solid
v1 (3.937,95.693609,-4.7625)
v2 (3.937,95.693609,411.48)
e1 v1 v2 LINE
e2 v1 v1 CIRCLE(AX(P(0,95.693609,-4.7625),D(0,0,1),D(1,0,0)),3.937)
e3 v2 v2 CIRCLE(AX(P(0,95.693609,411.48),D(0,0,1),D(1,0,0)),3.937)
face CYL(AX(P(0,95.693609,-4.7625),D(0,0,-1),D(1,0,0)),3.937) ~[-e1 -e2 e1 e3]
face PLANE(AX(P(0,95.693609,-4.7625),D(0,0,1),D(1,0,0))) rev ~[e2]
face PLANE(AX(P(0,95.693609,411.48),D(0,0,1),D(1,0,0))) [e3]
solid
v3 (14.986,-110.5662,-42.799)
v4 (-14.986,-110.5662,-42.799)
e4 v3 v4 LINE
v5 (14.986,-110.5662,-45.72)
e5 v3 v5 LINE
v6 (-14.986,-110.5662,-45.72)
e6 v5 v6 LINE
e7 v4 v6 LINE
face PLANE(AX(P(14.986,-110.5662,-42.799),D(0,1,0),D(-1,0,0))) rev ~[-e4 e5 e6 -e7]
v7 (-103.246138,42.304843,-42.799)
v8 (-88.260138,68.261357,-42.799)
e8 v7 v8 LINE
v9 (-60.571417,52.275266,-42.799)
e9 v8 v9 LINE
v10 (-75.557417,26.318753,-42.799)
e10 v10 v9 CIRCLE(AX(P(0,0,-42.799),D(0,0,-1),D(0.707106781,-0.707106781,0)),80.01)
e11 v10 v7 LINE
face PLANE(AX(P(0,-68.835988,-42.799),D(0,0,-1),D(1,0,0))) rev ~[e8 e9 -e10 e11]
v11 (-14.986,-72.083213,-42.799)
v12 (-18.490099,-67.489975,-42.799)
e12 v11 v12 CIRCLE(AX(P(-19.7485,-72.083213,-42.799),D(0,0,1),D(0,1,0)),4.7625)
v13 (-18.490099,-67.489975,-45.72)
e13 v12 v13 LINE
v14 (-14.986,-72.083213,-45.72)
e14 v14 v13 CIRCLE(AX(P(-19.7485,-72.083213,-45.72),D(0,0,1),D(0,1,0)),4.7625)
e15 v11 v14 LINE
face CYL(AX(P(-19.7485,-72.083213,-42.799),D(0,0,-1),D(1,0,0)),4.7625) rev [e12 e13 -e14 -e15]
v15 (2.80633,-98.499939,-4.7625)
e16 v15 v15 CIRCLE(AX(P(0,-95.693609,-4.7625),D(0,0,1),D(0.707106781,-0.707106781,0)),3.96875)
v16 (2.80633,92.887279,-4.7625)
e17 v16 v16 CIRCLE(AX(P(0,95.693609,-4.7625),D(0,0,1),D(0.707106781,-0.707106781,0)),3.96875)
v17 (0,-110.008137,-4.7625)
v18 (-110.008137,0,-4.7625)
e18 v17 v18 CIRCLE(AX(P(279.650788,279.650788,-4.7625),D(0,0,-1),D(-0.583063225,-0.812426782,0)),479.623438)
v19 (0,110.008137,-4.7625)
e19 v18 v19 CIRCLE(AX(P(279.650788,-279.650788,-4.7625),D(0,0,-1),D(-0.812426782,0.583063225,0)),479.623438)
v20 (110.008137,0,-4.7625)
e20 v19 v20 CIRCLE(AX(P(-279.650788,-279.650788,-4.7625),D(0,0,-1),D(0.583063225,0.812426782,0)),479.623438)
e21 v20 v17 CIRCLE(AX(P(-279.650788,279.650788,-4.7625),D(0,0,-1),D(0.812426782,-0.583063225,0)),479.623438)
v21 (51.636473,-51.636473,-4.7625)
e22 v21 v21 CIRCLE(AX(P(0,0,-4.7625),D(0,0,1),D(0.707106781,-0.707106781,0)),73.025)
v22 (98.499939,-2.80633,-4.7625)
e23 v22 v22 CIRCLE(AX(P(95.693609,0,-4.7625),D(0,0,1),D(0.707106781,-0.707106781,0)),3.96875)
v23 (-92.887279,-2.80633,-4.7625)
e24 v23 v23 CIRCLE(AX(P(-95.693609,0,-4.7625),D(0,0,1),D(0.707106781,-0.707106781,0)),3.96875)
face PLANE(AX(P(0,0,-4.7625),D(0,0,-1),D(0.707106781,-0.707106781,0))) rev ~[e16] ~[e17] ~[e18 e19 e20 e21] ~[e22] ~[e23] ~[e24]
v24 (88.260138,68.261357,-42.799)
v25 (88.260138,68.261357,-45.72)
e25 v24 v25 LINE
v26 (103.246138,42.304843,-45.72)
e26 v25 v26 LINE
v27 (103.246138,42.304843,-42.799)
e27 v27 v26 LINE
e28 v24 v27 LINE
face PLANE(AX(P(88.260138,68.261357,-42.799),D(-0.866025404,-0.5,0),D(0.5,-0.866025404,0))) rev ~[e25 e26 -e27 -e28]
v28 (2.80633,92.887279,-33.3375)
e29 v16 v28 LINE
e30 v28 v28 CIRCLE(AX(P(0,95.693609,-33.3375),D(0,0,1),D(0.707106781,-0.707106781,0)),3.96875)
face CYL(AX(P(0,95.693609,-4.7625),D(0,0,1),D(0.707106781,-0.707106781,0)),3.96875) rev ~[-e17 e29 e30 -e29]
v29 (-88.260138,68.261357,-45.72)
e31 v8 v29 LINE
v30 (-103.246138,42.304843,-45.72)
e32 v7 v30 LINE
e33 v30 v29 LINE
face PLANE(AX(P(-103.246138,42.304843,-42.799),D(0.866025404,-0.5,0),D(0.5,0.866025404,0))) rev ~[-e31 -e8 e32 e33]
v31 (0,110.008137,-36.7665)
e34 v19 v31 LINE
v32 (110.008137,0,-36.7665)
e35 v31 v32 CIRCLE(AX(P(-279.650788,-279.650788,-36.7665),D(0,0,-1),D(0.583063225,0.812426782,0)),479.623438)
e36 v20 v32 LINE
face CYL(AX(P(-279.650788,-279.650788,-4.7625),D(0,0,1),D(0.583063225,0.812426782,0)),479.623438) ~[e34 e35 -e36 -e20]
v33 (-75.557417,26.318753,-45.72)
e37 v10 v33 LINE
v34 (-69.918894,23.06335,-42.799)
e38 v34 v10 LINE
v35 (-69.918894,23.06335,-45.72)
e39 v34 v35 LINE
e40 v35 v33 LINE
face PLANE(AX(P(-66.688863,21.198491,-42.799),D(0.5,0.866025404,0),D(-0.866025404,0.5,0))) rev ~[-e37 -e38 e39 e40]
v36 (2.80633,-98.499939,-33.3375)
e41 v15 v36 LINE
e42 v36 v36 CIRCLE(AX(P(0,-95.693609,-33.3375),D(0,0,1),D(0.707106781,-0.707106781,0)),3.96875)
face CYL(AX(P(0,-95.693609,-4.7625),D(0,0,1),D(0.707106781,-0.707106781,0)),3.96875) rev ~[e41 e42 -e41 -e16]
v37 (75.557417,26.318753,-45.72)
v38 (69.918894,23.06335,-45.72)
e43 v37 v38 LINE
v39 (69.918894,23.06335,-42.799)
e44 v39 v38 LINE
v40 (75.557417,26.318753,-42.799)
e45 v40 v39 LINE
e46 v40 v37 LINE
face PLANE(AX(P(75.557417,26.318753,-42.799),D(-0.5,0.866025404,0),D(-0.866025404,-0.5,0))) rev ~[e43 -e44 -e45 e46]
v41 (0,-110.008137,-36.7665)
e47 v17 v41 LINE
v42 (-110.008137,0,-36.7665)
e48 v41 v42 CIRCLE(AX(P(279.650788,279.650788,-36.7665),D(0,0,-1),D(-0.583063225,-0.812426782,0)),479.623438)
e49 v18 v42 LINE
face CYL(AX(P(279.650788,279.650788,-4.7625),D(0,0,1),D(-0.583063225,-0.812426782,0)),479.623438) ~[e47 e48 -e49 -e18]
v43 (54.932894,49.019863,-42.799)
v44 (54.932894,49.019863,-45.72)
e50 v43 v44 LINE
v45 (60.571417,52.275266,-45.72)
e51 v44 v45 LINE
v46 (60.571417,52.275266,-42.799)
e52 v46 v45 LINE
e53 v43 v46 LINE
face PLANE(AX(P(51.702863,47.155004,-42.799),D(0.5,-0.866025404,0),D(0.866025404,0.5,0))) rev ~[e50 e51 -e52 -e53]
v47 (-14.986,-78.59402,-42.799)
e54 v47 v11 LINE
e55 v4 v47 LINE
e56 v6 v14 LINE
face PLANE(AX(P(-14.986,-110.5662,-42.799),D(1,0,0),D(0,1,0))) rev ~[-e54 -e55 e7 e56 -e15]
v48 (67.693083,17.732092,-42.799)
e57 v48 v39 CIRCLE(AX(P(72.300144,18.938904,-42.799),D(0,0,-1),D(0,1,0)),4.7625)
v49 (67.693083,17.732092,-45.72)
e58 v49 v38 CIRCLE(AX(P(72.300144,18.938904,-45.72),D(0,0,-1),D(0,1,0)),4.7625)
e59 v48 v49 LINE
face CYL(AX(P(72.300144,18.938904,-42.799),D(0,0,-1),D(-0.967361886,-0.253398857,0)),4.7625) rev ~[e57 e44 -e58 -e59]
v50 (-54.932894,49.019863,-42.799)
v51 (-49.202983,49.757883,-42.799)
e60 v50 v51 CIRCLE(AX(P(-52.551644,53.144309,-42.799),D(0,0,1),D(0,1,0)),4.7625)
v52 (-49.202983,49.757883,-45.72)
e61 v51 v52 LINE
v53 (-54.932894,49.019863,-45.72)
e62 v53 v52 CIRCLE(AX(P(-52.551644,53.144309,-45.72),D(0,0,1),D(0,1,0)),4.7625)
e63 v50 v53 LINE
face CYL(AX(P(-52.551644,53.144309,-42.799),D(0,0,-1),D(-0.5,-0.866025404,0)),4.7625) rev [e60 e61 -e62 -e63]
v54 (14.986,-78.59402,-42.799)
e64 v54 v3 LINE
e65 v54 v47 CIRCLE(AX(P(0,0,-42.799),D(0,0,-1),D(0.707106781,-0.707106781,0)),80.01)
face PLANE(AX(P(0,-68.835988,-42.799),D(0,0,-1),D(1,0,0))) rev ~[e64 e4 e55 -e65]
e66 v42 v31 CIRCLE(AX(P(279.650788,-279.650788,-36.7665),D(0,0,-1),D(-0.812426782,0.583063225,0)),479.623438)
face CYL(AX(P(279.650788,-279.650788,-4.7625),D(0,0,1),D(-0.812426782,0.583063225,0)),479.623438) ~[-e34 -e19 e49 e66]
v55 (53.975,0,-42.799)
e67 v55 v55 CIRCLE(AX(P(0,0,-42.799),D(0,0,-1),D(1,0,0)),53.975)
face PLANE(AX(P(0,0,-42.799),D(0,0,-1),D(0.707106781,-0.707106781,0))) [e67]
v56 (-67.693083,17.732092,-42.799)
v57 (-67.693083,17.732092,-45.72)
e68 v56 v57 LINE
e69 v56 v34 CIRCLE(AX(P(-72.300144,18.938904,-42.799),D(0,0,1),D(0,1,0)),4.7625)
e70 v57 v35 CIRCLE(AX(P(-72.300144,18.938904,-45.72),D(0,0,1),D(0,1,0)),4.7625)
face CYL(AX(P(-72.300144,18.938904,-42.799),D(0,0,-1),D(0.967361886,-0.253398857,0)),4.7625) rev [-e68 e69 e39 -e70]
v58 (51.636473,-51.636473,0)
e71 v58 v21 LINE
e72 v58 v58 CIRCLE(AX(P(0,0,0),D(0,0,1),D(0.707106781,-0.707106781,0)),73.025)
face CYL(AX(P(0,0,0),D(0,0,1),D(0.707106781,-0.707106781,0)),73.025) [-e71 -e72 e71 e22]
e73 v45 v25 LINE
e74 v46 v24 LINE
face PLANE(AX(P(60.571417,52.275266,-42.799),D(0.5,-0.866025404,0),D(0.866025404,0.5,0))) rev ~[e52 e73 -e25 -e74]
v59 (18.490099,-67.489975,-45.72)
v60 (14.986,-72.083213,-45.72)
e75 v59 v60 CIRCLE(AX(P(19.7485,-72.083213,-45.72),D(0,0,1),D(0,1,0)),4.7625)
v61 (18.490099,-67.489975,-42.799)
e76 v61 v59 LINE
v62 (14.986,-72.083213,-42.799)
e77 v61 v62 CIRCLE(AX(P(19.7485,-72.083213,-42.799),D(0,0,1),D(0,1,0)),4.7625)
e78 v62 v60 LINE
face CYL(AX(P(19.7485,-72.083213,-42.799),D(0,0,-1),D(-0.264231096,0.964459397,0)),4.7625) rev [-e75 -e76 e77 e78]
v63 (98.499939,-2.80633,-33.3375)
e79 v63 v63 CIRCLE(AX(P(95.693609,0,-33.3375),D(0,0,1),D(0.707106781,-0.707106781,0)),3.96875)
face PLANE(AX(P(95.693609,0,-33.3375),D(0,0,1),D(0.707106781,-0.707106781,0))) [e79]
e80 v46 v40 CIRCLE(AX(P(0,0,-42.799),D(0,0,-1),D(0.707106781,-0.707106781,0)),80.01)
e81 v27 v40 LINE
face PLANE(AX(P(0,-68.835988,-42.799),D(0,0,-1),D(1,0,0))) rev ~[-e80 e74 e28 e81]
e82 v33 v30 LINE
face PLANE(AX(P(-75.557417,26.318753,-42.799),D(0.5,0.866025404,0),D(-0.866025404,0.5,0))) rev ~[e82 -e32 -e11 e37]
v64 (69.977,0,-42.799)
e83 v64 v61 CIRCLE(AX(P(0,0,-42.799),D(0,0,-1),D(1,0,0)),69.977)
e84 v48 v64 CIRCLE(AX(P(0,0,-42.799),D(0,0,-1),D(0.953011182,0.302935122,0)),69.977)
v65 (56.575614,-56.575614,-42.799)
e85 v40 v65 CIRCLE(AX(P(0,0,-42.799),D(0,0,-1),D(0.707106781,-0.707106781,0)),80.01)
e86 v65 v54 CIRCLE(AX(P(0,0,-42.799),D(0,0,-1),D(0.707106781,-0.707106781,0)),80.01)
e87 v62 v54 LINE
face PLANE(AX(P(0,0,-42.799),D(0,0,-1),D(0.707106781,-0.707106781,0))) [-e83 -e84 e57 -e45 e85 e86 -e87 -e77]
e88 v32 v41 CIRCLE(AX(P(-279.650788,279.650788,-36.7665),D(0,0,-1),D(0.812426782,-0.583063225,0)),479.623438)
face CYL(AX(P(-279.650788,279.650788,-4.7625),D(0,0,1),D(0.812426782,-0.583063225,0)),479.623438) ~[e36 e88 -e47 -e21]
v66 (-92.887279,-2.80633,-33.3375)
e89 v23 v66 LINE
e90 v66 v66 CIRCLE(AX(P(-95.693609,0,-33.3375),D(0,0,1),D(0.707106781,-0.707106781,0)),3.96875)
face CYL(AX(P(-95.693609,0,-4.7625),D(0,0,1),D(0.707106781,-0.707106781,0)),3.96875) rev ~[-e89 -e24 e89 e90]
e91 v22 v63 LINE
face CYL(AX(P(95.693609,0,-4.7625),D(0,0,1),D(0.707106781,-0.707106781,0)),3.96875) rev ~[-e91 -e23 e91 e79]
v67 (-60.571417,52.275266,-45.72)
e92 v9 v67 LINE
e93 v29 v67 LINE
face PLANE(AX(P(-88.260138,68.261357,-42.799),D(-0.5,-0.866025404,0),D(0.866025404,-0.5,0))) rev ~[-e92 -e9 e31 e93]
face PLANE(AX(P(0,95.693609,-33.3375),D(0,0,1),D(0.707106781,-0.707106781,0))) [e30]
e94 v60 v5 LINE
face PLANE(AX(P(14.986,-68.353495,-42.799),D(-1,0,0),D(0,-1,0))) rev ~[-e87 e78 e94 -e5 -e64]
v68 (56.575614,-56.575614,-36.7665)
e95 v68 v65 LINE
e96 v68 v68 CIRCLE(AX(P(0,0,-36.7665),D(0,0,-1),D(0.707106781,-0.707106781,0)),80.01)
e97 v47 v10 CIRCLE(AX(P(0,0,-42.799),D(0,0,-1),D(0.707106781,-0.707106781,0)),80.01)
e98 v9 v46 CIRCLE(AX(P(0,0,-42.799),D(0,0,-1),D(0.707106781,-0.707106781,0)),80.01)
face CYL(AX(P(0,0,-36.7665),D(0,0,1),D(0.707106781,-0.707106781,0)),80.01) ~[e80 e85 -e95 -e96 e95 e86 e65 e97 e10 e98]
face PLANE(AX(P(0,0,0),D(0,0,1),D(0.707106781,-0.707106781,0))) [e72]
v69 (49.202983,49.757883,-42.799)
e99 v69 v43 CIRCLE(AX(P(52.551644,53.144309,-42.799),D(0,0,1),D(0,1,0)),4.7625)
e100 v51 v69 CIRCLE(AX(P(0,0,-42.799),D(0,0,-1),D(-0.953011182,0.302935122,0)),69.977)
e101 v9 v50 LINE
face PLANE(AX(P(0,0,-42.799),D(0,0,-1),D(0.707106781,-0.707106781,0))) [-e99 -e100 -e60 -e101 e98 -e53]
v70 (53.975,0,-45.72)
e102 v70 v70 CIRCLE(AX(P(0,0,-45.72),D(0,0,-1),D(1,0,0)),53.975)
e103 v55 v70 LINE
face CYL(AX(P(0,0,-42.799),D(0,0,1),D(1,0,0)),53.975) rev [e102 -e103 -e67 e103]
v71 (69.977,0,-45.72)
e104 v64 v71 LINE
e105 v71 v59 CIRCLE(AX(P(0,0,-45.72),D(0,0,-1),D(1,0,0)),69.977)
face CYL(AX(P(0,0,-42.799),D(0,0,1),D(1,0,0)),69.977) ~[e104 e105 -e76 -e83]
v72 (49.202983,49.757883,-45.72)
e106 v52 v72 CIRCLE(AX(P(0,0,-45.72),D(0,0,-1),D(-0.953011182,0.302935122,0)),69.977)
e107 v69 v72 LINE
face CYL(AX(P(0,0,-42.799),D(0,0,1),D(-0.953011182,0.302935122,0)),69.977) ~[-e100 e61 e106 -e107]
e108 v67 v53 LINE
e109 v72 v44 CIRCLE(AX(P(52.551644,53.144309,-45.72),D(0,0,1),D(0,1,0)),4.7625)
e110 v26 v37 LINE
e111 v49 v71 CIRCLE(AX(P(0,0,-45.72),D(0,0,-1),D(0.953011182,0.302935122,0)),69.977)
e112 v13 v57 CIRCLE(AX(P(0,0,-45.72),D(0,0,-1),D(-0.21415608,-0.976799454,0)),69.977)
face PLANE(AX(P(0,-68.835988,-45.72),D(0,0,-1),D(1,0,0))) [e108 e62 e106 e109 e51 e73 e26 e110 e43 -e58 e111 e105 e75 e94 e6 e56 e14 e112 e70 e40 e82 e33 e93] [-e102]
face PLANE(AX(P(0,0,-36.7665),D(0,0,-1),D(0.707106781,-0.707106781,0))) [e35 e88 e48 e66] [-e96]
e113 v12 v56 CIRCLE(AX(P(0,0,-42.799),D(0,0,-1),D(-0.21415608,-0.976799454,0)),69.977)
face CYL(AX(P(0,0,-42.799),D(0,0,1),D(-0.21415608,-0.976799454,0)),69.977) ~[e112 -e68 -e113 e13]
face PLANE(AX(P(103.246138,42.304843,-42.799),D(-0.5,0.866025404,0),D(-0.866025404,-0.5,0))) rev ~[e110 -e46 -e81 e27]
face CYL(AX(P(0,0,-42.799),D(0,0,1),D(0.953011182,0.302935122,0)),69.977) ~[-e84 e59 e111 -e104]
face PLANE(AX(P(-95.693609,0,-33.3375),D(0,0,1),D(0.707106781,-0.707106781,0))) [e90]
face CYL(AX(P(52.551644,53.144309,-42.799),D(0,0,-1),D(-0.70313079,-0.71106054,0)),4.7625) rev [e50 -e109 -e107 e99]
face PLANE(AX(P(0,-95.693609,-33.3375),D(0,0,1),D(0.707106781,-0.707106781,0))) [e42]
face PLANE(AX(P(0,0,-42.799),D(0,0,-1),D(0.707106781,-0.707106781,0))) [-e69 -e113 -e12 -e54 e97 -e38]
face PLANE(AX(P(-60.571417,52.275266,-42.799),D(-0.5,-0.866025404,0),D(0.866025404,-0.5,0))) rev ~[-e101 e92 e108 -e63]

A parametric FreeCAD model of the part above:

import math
import FreeCAD as App
import Part
import Sketcher

V = App.Vector
Q = App.Units.Quantity


def edges_at(feature, points):
    """Names of the edges that pass closest to the given points."""
    edges = feature.Shape.Edges
    near = lambda p: min(range(len(edges)), key=lambda i: edges[i].distToShape(Part.Vertex(*p))[0])
    return sorted({f"Edge{near(p) + 1}" for p in points})

doc = App.newDocument("Part")
body = doc.addObject("PartDesign::Body", "Body")

sketch1 = doc.addObject("Sketcher::SketchObject", "Sketch")
body.addObject(sketch1)
sketch1.AttachmentSupport = (doc.XY_Plane, [""])
sketch1.MapMode = "FlatFace"
sketch1.addGeometry(Part.Circle(V(0, 0, 0), V(0, 0, 1), 73), False)
sketch1.addConstraint([
    Sketcher.Constraint("Coincident", 0, 3, -1, 1),
    Sketcher.Constraint("Diameter", 0, Q("5.75 in")),
])
pad1 = doc.addObject("PartDesign::Pad", "Pad")
body.addObject(pad1)
pad1.Profile = sketch1
pad1.Length = Q("0.1875 in")
pad1.Reversed = True

sketch2 = doc.addObject("Sketcher::SketchObject", "Sketch001")
body.addObject(sketch2)
sketch2.AttachmentSupport = (doc.XY_Plane, [""])
sketch2.MapMode = "FlatFace"
sketch2.AttachmentOffset = App.Placement(V(0, 0, -0.1875 * 25.4), App.Rotation())
sketch2.addGeometry([
    Part.ArcOfCircle(Part.Circle(V(395, 0, 0), V(0, 0, 1), 480), math.radians(170.67), math.radians(189.33)),
    Part.ArcOfCircle(Part.Circle(V(0, -395, 0), V(0, 0, 1), 480), math.radians(80.67), math.radians(99.33)),
    Part.ArcOfCircle(Part.Circle(V(-395, 0, 0), V(0, 0, 1), 480), math.radians(-9.33), math.radians(9.33)),
    Part.ArcOfCircle(Part.Circle(V(0, 395, 0), V(0, 0, 1), 480), math.radians(-99.33), math.radians(-80.67)),
], False)
sketch2.addConstraint([
    Sketcher.Constraint("Coincident", 0, 1, 1, 2),
    Sketcher.Constraint("Coincident", 1, 1, 2, 2),
    Sketcher.Constraint("Coincident", 2, 1, 3, 2),
    Sketcher.Constraint("Coincident", 3, 1, 0, 2),
    Sketcher.Constraint("Equal", 0, 1),
    Sketcher.Constraint("Equal", 1, 2),
    Sketcher.Constraint("Equal", 2, 3),
    Sketcher.Constraint("Symmetric", 0, 3, 2, 3, -1, 1),
    Sketcher.Constraint("Symmetric", 1, 3, 3, 3, -1, 1),
    Sketcher.Constraint("PointOnObject", 0, 3, -1),
    Sketcher.Constraint("PointOnObject", 1, 3, -2),
    Sketcher.Constraint("DistanceX", 0, 1, -1, 1, Q("3.0625 in")),
    Sketcher.Constraint("DistanceY", -1, 1, 1, 1, Q("3.0625 in")),
    Sketcher.Constraint("DistanceX", 2, 3, 0, 3, Q("31.140625 in")),
])
pad2 = doc.addObject("PartDesign::Pad", "Pad001")
body.addObject(pad2)
pad2.Profile = sketch2
pad2.Length = Q("1.26 in")
pad2.Reversed = True

sketch3 = doc.addObject("Sketcher::SketchObject", "Sketch002")
body.addObject(sketch3)
sketch3.AttachmentSupport = (doc.XY_Plane, [""])
sketch3.MapMode = "FlatFace"
sketch3.AttachmentOffset = App.Placement(V(0, 0, -0.1875 * 25.4), App.Rotation())
sketch3.addGeometry([
    Part.Circle(V(-67.7, 67.7, 0), V(0, 0, 1), 4),
    Part.Circle(V(-67.7, -67.7, 0), V(0, 0, 1), 4),
    Part.Circle(V(67.7, -67.7, 0), V(0, 0, 1), 4),
    Part.Circle(V(67.7, 67.7, 0), V(0, 0, 1), 4),
], False)
sketch3.addConstraint([
    Sketcher.Constraint("Equal", 0, 1),
    Sketcher.Constraint("Equal", 1, 2),
    Sketcher.Constraint("Equal", 2, 3),
    Sketcher.Constraint("Symmetric", 0, 3, 2, 3, -1, 1),
    Sketcher.Constraint("Symmetric", 1, 3, 3, 3, -1, 1),
    Sketcher.Constraint("Symmetric", 1, 3, 2, 3, -2),
    Sketcher.Constraint("Diameter", 0, Q("0.3125 in")),
    Sketcher.Constraint("DistanceX", 0, 3, -1, 1, Q("2.664 in")),
    Sketcher.Constraint("DistanceY", -1, 1, 0, 3, Q("2.664 in")),
])
pocket1 = doc.addObject("PartDesign::Pocket", "Pocket")
body.addObject(pocket1)
pocket1.Profile = sketch3
pocket1.Length = Q("1.125 in")

sketch4 = doc.addObject("Sketcher::SketchObject", "Sketch003")
body.addObject(sketch4)
sketch4.AttachmentSupport = (doc.XY_Plane, [""])
sketch4.MapMode = "FlatFace"
sketch4.AttachmentOffset = App.Placement(V(0, 0, -1.4475 * 25.4), App.Rotation())
sketch4.addGeometry(Part.Circle(V(0, 0, 0), V(0, 0, 1), 80), False)
sketch4.addConstraint([
    Sketcher.Constraint("Coincident", 0, 3, -1, 1),
    Sketcher.Constraint("Diameter", 0, Q("6.3 in")),
])
pad3 = doc.addObject("PartDesign::Pad", "Pad002")
body.addObject(pad3)
pad3.Profile = sketch4
pad3.Length = Q("0.2375 in")
pad3.Reversed = True
body2 = doc.addObject("PartDesign::Body", "Body001")
doc.recompute()

body.Placement = App.Placement(V(0, 0, 0), App.Rotation(V(0, 0, 1), 315))
boolean = doc.addObject("PartDesign::Boolean", "Boolean")
body2.addObject(boolean)
boolean.Type = "Fuse"
boolean.addObjects([body])

sketch5 = doc.addObject("Sketcher::SketchObject", "Sketch004")
body2.addObject(sketch5)
sketch5.AttachmentSupport = (doc.getObject("XY_Plane001"), [""])
sketch5.MapMode = "FlatFace"
sketch5.AttachmentOffset = App.Placement(V(0, 0, -1.685 * 25.4), App.Rotation())
sketch5.addGeometry([
    Part.ArcOfCircle(Part.Circle(V(0, 0, 0), V(0, 0, 1), 70), math.radians(-78), math.radians(0)),
    Part.LineSegment(V(15, -68, 0), V(15, -111, 0)),
    Part.LineSegment(V(15, -111, 0), V(-15, -111, 0)),
    Part.LineSegment(V(-15, -111, 0), V(-15, -68, 0)),
    Part.ArcOfCircle(Part.Circle(V(0, 0, 0), V(0, 0, 1), 70), math.radians(162), math.radians(258)),
    Part.LineSegment(V(-67, 21, 0), V(-76, 26, 0)),
    Part.LineSegment(V(-76, 26, 0), V(-103, 42, 0)),
    Part.LineSegment(V(-103, 42, 0), V(-88, 68, 0)),
    Part.LineSegment(V(-88, 68, 0), V(-61, 52, 0)),
    Part.LineSegment(V(-61, 52, 0), V(-52, 47, 0)),
    Part.ArcOfCircle(Part.Circle(V(0, 0, 0), V(0, 0, 1), 70), math.radians(42), math.radians(138)),
    Part.LineSegment(V(52, 47, 0), V(61, 52, 0)),
    Part.LineSegment(V(61, 52, 0), V(88, 68, 0)),
    Part.LineSegment(V(88, 68, 0), V(103, 42, 0)),
    Part.LineSegment(V(103, 42, 0), V(76, 26, 0)),
    Part.LineSegment(V(76, 26, 0), V(67, 21, 0)),
    Part.ArcOfCircle(Part.Circle(V(0, 0, 0), V(0, 0, 1), 70), math.radians(0), math.radians(17.63)),
    Part.Circle(V(0, 0, 0), V(0, 0, 1), 54),
], False)
sketch5.addConstraint([
    Sketcher.Constraint("Coincident", 0, 1, 1, 1),
    Sketcher.Constraint("Coincident", 1, 2, 2, 1),
    Sketcher.Constraint("Coincident", 2, 2, 3, 1),
    Sketcher.Constraint("Coincident", 3, 2, 4, 2),
    Sketcher.Constraint("Coincident", 4, 1, 5, 1),
    Sketcher.Constraint("Coincident", 5, 2, 6, 1),
    Sketcher.Constraint("Coincident", 6, 2, 7, 1),
    Sketcher.Constraint("Coincident", 7, 2, 8, 1),
    Sketcher.Constraint("Coincident", 8, 2, 9, 1),
    Sketcher.Constraint("Coincident", 9, 2, 10, 2),
    Sketcher.Constraint("Coincident", 10, 1, 11, 1),
    Sketcher.Constraint("Coincident", 11, 2, 12, 1),
    Sketcher.Constraint("Coincident", 12, 2, 13, 1),
    Sketcher.Constraint("Coincident", 13, 2, 14, 1),
    Sketcher.Constraint("Coincident", 14, 2, 15, 1),
    Sketcher.Constraint("Coincident", 15, 2, 16, 2),
    Sketcher.Constraint("Tangent", 16, 1, 0, 2),
    Sketcher.Constraint("Vertical", 1),
    Sketcher.Constraint("Horizontal", 2),
    Sketcher.Constraint("Vertical", 3),
    Sketcher.Constraint("Coincident", 0, 3, -1, 1),
    Sketcher.Constraint("Coincident", 4, 3, -1, 1),
    Sketcher.Constraint("Coincident", 10, 3, -1, 1),
    Sketcher.Constraint("Coincident", 17, 3, -1, 1),
    Sketcher.Constraint("Equal", 0, 4),
    Sketcher.Constraint("Equal", 4, 10),
    Sketcher.Constraint("Equal", 10, 16),
    Sketcher.Constraint("Symmetric", 8, 2, 11, 2, -2),
    Sketcher.Constraint("Symmetric", 7, 2, 12, 2, -2),
    Sketcher.Constraint("Symmetric", 6, 2, 13, 2, -2),
    Sketcher.Constraint("Symmetric", 5, 2, 14, 2, -2),
    Sketcher.Constraint("PointOnObject", 16, 1, -1),
    Sketcher.Constraint("Parallel", 5, 6),
    Sketcher.Constraint("Perpendicular", 6, 7),
    Sketcher.Constraint("Perpendicular", 7, 8),
    Sketcher.Constraint("Parallel", 8, 9),
    Sketcher.Constraint("Parallel", 11, 12),
    Sketcher.Constraint("Parallel", 14, 15),
    Sketcher.Constraint("Horizontal", 0, 1, 3, 2),
    Sketcher.Constraint("Equal", 6, 8),
    Sketcher.Constraint("Equal", 5, 9),
    Sketcher.Constraint("Diameter", 17, Q("4.25 in")),
    Sketcher.Constraint("Angle", 5, Q("150 deg")),
    Sketcher.Constraint("Radius", 0, Q("2.755 in")),
    Sketcher.Constraint("DistanceX", 2, 2, 2, 1, Q("1.18 in")),
    Sketcher.Constraint("Distance", 7, Q("1.18 in")),
    Sketcher.Constraint("DistanceY", 1, 2, -1, 1, Q("4.353 in")),
    Sketcher.Constraint("Distance", 6, Q("31.97218 mm")),
    Sketcher.Constraint("DistanceX", 6, 2, -1, 1, Q("103.246138 mm")),
])
pad4 = doc.addObject("PartDesign::Pad", "Pad003")
body2.addObject(pad4)
pad4.Profile = sketch5
pad4.Length = Q("0.115 in")
pad4.Reversed = True
doc.recompute()

fillet = doc.addObject("PartDesign::Fillet", "Fillet")
body2.addObject(fillet)
fillet.Base = (pad4, edges_at(pad4, [
    (14.986, -68.353, -44.26),
    (-14.986, -68.353, -44.26),
    (-66.689, 21.198, -44.26),
    (-51.703, 47.155, -44.26),
    (51.703, 47.155, -44.26),
    (66.689, 21.198, -44.26),
]))
fillet.Radius = Q("0.1875 in")
body3 = doc.addObject("PartDesign::Body", "Body002")

sketch6 = doc.addObject("Sketcher::SketchObject", "Sketch005")
body3.addObject(sketch6)
sketch6.AttachmentSupport = (doc.getObject("XY_Plane002"), [""])
sketch6.MapMode = "FlatFace"
sketch6.AttachmentOffset = App.Placement(V(0, 0, -0.1875 * 25.4), App.Rotation())
sketch6.addGeometry(Part.Circle(V(0, 95.7, 0), V(0, 0, 1), 3.9), False)
sketch6.addConstraint([
    Sketcher.Constraint("PointOnObject", 0, 3, -2),
    Sketcher.Constraint("Diameter", 0, Q("0.31 in")),
    Sketcher.Constraint("DistanceY", -1, 1, 0, 3, Q("95.693609 mm")),
])
pad5 = doc.addObject("PartDesign::Pad", "Pad004")
body3.addObject(pad5)
pad5.Profile = sketch6
pad5.Length = Q("16.3875 in")

doc.recompute()
